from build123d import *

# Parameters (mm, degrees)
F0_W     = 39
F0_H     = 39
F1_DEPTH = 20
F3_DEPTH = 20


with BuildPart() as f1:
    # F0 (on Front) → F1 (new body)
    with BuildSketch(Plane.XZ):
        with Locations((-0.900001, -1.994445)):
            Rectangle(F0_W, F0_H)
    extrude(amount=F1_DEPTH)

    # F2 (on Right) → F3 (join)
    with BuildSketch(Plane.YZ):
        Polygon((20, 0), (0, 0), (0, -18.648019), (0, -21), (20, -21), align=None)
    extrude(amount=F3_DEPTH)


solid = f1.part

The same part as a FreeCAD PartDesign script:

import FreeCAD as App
import Part
import Sketcher

V = App.Vector

doc = App.newDocument("Part")
body = doc.addObject("PartDesign::Body", "Body")

# Sketch on XZ plane
sketch1 = doc.addObject("Sketcher::SketchObject", "Sketch")
body.addObject(sketch1)
sketch1.AttachmentSupport = (doc.XZ_Plane, [""])
sketch1.MapMode = "FlatFace"
sketch1.addGeometry(Part.LineSegment(V(-20, 18, 0), V(-20, -21, 0)), False)
sketch1.addGeometry(Part.LineSegment(V(-20, -21, 0), V(19, -21, 0)), False)
sketch1.addGeometry(Part.LineSegment(V(19, -21, 0), V(19, 18, 0)), False)
sketch1.addGeometry(Part.LineSegment(V(19, 18, 0), V(-20, 18, 0)), False)
sketch1.addConstraint(Sketcher.Constraint("Coincident", 0, 2, 1, 1))
sketch1.addConstraint(Sketcher.Constraint("Coincident", 1, 2, 2, 1))
sketch1.addConstraint(Sketcher.Constraint("Coincident", 2, 2, 3, 1))
sketch1.addConstraint(Sketcher.Constraint("Coincident", 3, 2, 0, 1))
sketch1.addConstraint(Sketcher.Constraint("Vertical", 0))
sketch1.addConstraint(Sketcher.Constraint("Horizontal", 1))
sketch1.addConstraint(Sketcher.Constraint("Vertical", 2))
sketch1.addConstraint(Sketcher.Constraint("Horizontal", 3))
sketch1.addConstraint(Sketcher.Constraint("Equal", 3, 0))
sketch1.addConstraint(Sketcher.Constraint("DistanceX", 1, 1, 1, 2, 39.0))
sketch1.addConstraint(Sketcher.Constraint("DistanceX", 0, 2, -1, 1, 20.400001))
sketch1.addConstraint(Sketcher.Constraint("DistanceY", 0, 2, -1, 1, 21.494445))
pad1 = doc.addObject("PartDesign::Pad", "Pad")
body.addObject(pad1)
pad1.Profile = sketch1
pad1.Length = 20

# Sketch on YZ plane
sketch2 = doc.addObject("Sketcher::SketchObject", "Sketch001")
body.addObject(sketch2)
sketch2.AttachmentSupport = (doc.YZ_Plane, [""])
sketch2.MapMode = "FlatFace"
sketch2.addGeometry(Part.LineSegment(V(20, 0, 0), V(0, 0, 0)), False)
sketch2.addGeometry(Part.LineSegment(V(0, 0, 0), V(0, -21, 0)), False)
sketch2.addGeometry(Part.LineSegment(V(0, -21, 0), V(20, -21, 0)), False)
sketch2.addGeometry(Part.LineSegment(V(20, -21, 0), V(20, 0, 0)), False)
sketch2.addConstraint(Sketcher.Constraint("Coincident", 0, 2, 1, 1))
sketch2.addConstraint(Sketcher.Constraint("Coincident", 1, 2, 2, 1))
sketch2.addConstraint(Sketcher.Constraint("Coincident", 2, 2, 3, 1))
sketch2.addConstraint(Sketcher.Constraint("Coincident", 3, 2, 0, 1))
sketch2.addConstraint(Sketcher.Constraint("Horizontal", 0))
sketch2.addConstraint(Sketcher.Constraint("Vertical", 1))
sketch2.addConstraint(Sketcher.Constraint("Horizontal", 2))
sketch2.addConstraint(Sketcher.Constraint("Vertical", 3))
sketch2.addConstraint(Sketcher.Constraint("Coincident", 0, 2, -1, 1))
sketch2.addConstraint(Sketcher.Constraint("DistanceX", 0, 2, 0, 1, 20.0))
sketch2.addConstraint(Sketcher.Constraint("DistanceY", 1, 2, 1, 1, 21.0))
pad2 = doc.addObject("PartDesign::Pad", "Pad001")
body.addObject(pad2)
pad2.Profile = sketch2
pad2.Length = 20

doc.recompute()
